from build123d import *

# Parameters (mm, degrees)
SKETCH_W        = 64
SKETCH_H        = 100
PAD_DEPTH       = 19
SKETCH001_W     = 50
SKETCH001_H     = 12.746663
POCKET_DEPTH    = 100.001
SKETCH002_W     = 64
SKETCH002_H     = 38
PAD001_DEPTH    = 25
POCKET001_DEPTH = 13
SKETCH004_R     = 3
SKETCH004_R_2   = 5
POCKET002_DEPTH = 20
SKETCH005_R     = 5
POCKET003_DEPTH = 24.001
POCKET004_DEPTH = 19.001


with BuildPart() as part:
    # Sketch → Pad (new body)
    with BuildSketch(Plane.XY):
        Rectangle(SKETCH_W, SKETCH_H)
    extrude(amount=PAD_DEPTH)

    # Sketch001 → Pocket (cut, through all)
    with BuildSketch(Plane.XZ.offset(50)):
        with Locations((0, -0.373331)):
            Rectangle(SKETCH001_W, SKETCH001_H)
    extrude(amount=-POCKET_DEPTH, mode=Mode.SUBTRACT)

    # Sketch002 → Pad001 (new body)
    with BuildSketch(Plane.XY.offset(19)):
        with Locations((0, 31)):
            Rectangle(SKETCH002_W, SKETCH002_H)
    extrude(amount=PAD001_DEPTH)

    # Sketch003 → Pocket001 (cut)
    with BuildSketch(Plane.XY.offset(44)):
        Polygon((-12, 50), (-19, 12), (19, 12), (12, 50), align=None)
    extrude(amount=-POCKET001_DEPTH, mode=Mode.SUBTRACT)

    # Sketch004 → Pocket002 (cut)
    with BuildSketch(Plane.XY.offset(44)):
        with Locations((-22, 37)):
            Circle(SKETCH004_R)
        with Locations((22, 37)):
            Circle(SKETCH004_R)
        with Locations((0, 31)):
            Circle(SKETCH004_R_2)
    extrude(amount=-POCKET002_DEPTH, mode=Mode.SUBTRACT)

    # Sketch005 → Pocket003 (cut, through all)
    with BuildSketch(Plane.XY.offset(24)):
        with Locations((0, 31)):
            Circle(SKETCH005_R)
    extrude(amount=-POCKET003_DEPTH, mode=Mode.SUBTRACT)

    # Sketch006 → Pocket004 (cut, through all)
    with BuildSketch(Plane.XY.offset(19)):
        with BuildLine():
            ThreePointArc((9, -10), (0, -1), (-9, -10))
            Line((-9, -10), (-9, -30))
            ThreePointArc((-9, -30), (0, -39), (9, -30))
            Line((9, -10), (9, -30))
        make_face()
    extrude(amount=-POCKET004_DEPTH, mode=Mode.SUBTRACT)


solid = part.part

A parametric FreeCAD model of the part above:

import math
import FreeCAD as App
import Part
import Sketcher
Q = App.Units.Quantity

doc = App.newDocument("Part")
body = doc.addObject("PartDesign::Body", "Body")

# Sketch on XY plane
sketch1 = body.newObject("Sketcher::SketchObject", "Sketch")
sketch1.AttachmentSupport = (doc.getObject("XY_Plane"), [""])
sketch1.MapMode = "FlatFace"
sketch1.addGeometry([
    Part.LineSegment(App.Vector(-32, 50, 0), App.Vector(-32, -50, 0)),
    Part.LineSegment(App.Vector(-32, -50, 0), App.Vector(32, -50, 0)),
    Part.LineSegment(App.Vector(32, -50, 0), App.Vector(32, 50, 0)),
    Part.LineSegment(App.Vector(32, 50, 0), App.Vector(-32, 50, 0)),
], False)
sketch1.addConstraint([
    Sketcher.Constraint("Coincident", 0, 2, 1, 1),
    Sketcher.Constraint("Coincident", 1, 2, 2, 1),
    Sketcher.Constraint("Coincident", 2, 2, 3, 1),
    Sketcher.Constraint("Coincident", 3, 2, 0, 1),
    Sketcher.Constraint("Vertical", 0),
    Sketcher.Constraint("Horizontal", 1),
    Sketcher.Constraint("Vertical", 2),
    Sketcher.Constraint("Horizontal", 3),
    Sketcher.Constraint("Symmetric", 0, 2, 2, 2, -1, 1),
    Sketcher.Constraint("DistanceX", 1, 1, 1, 2, Q("64 mm")),
    Sketcher.Constraint("DistanceY", 0, 2, 0, 1, Q("100 mm")),
])
pad1 = body.newObject("PartDesign::Pad", "Pad")
pad1.Profile = sketch1
pad1.Length = 19

# Sketch on XZ plane
sketch2 = body.newObject("Sketcher::SketchObject", "Sketch001")
sketch2.AttachmentSupport = (doc.getObject("XZ_Plane"), [""])
sketch2.MapMode = "FlatFace"
sketch2.AttachmentOffset = App.Placement(App.Vector(0, 0, 50), App.Rotation())
sketch2.addGeometry([
    Part.LineSegment(App.Vector(-25, 6, 0), App.Vector(-25, -7, 0)),
    Part.LineSegment(App.Vector(-25, -7, 0), App.Vector(25, -7, 0)),
    Part.LineSegment(App.Vector(25, -7, 0), App.Vector(25, 6, 0)),
    Part.LineSegment(App.Vector(25, 6, 0), App.Vector(-25, 6, 0)),
], False)
sketch2.addConstraint([
    Sketcher.Constraint("Coincident", 0, 2, 1, 1),
    Sketcher.Constraint("Coincident", 1, 2, 2, 1),
    Sketcher.Constraint("Coincident", 2, 2, 3, 1),
    Sketcher.Constraint("Coincident", 3, 2, 0, 1),
    Sketcher.Constraint("Vertical", 0),
    Sketcher.Constraint("Horizontal", 1),
    Sketcher.Constraint("Vertical", 2),
    Sketcher.Constraint("Horizontal", 3),
    Sketcher.Constraint("DistanceX", 1, 1, 1, 2, Q("50 mm")),
    Sketcher.Constraint("DistanceX", 0, 2, -1, 1, Q("25 mm")),
    Sketcher.Constraint("DistanceY", -1, 1, 2, 2, Q("6 mm")),
    Sketcher.Constraint("DistanceY", 0, 2, 0, 1, Q("12.746663 mm")),
])
pocket1 = body.newObject("PartDesign::Pocket", "Pocket")
pocket1.Profile = sketch2
pocket1.Type = "ThroughAll"

# Sketch on XY plane
sketch3 = body.newObject("Sketcher::SketchObject", "Sketch002")
sketch3.AttachmentSupport = (doc.getObject("XY_Plane"), [""])
sketch3.MapMode = "FlatFace"
sketch3.AttachmentOffset = App.Placement(App.Vector(0, 0, 19), App.Rotation())
sketch3.addGeometry([
    Part.LineSegment(App.Vector(-32, 50, 0), App.Vector(-32, 12, 0)),
    Part.LineSegment(App.Vector(-32, 12, 0), App.Vector(32, 12, 0)),
    Part.LineSegment(App.Vector(32, 12, 0), App.Vector(32, 50, 0)),
    Part.LineSegment(App.Vector(32, 50, 0), App.Vector(-32, 50, 0)),
], False)
sketch3.addConstraint([
    Sketcher.Constraint("Coincident", 0, 2, 1, 1),
    Sketcher.Constraint("Coincident", 1, 2, 2, 1),
    Sketcher.Constraint("Coincident", 2, 2, 3, 1),
    Sketcher.Constraint("Coincident", 3, 2, 0, 1),
    Sketcher.Constraint("Vertical", 0),
    Sketcher.Constraint("Horizontal", 1),
    Sketcher.Constraint("Vertical", 2),
    Sketcher.Constraint("Horizontal", 3),
    Sketcher.Constraint("DistanceX", 1, 1, 1, 2, Q("64 mm")),
    Sketcher.Constraint("DistanceY", 0, 2, 0, 1, Q("38 mm")),
    Sketcher.Constraint("DistanceX", 0, 2, -1, 1, Q("32 mm")),
    Sketcher.Constraint("DistanceY", -1, 1, 0, 2, Q("12 mm")),
])
pad2 = body.newObject("PartDesign::Pad", "Pad001")
pad2.Profile = sketch3
pad2.Length = 25

# Sketch on XY plane
sketch4 = body.newObject("Sketcher::SketchObject", "Sketch003")
sketch4.AttachmentSupport = (doc.getObject("XY_Plane"), [""])
sketch4.MapMode = "FlatFace"
sketch4.AttachmentOffset = App.Placement(App.Vector(0, 0, 44), App.Rotation())
sketch4.addGeometry([
    Part.LineSegment(App.Vector(-12, 50, 0), App.Vector(-19, 12, 0)),
    Part.LineSegment(App.Vector(-19, 12, 0), App.Vector(19, 12, 0)),
    Part.LineSegment(App.Vector(19, 12, 0), App.Vector(12, 50, 0)),
    Part.LineSegment(App.Vector(12, 50, 0), App.Vector(-12, 50, 0)),
], False)
sketch4.addConstraint([
    Sketcher.Constraint("Coincident", 0, 2, 1, 1),
    Sketcher.Constraint("Coincident", 1, 2, 2, 1),
    Sketcher.Constraint("Coincident", 2, 2, 3, 1),
    Sketcher.Constraint("Coincident", 3, 2, 0, 1),
    Sketcher.Constraint("Horizontal", 1),
    Sketcher.Constraint("Horizontal", 3),
    Sketcher.Constraint("Equal", 0, 2),
    Sketcher.Constraint("DistanceX", 1, 1, 1, 2, Q("38 mm")),
    Sketcher.Constraint("DistanceX", 3, 2, 3, 1, Q("24 mm")),
    Sketcher.Constraint("DistanceX", 0, 2, -1, 1, Q("19 mm")),
    Sketcher.Constraint("DistanceY", -1, 1, 0, 2, Q("12 mm")),
    Sketcher.Constraint("DistanceY", -1, 1, 2, 2, Q("50 mm")),
])
pocket2 = body.newObject("PartDesign::Pocket", "Pocket001")
pocket2.Profile = sketch4
pocket2.Length = 13

# Sketch on XY plane
sketch5 = body.newObject("Sketcher::SketchObject", "Sketch004")
sketch5.AttachmentSupport = (doc.getObject("XY_Plane"), [""])
sketch5.MapMode = "FlatFace"
sketch5.AttachmentOffset = App.Placement(App.Vector(0, 0, 44), App.Rotation())
sketch5.addGeometry([
    Part.Circle(App.Vector(-22, 37, 0), App.Vector(0, 0, 1), 3),
    Part.Circle(App.Vector(22, 37, 0), App.Vector(0, 0, 1), 3),
    Part.Circle(App.Vector(0, 31, 0), App.Vector(0, 0, 1), 5),
], False)
sketch5.addConstraint([
    Sketcher.Constraint("Equal", 0, 1),
    Sketcher.Constraint("Symmetric", 0, 3, 1, 3, -2),
    Sketcher.Constraint("PointOnObject", 2, 3, -2),
    Sketcher.Constraint("Diameter", 0, Q("6 mm")),
    Sketcher.Constraint("Diameter", 2, Q("10 mm")),
    Sketcher.Constraint("DistanceX", 0, 3, -1, 1, Q("22 mm")),
    Sketcher.Constraint("DistanceY", -1, 1, 0, 3, Q("37 mm")),
    Sketcher.Constraint("DistanceY", -1, 1, 2, 3, Q("31 mm")),
])
pocket3 = body.newObject("PartDesign::Pocket", "Pocket002")
pocket3.Profile = sketch5
pocket3.Length = 20

# Sketch on XY plane
sketch6 = body.newObject("Sketcher::SketchObject", "Sketch005")
sketch6.AttachmentSupport = (doc.getObject("XY_Plane"), [""])
sketch6.MapMode = "FlatFace"
sketch6.AttachmentOffset = App.Placement(App.Vector(0, 0, 24), App.Rotation())
sketch6.addGeometry(Part.Circle(App.Vector(0, 31, 0), App.Vector(0, 0, 1), 5), False)
sketch6.addConstraint([
    Sketcher.Constraint("PointOnObject", 0, 3, -2),
    Sketcher.Constraint("Diameter", 0, Q("10 mm")),
    Sketcher.Constraint("DistanceY", -1, 1, 0, 3, Q("31 mm")),
])
pocket4 = body.newObject("PartDesign::Pocket", "Pocket003")
pocket4.Profile = sketch6
pocket4.Type = "ThroughAll"

# Sketch on XY plane
sketch7 = body.newObject("Sketcher::SketchObject", "Sketch006")
sketch7.AttachmentSupport = (doc.getObject("XY_Plane"), [""])
sketch7.MapMode = "FlatFace"
sketch7.AttachmentOffset = App.Placement(App.Vector(0, 0, 19), App.Rotation())
sketch7.addGeometry([
    Part.ArcOfCircle(Part.Circle(App.Vector(0, -10, 0), App.Vector(0, 0, 1), 9), math.radians(0), math.radians(180)),
    Part.LineSegment(App.Vector(-9, -10, 0), App.Vector(-9, -30, 0)),
    Part.ArcOfCircle(Part.Circle(App.Vector(0, -30, 0), App.Vector(0, 0, 1), 9), math.radians(180), math.radians(360)),
    Part.LineSegment(App.Vector(9, -30, 0), App.Vector(9, -10, 0)),
], False)
sketch7.addConstraint([
    Sketcher.Constraint("Tangent", 0, 2, 1, 1),
    Sketcher.Constraint("Tangent", 1, 2, 2, 1),
    Sketcher.Constraint("Tangent", 2, 2, 3, 1),
    Sketcher.Constraint("Tangent", 3, 2, 0, 1),
    Sketcher.Constraint("Vertical", 1),
    Sketcher.Constraint("Vertical", 3),
    Sketcher.Constraint("PointOnObject", 0, 3, -2),
    Sketcher.Constraint("Radius", 0, Q("9 mm")),
    Sketcher.Constraint("DistanceY", 1, 2, 1, 1, Q("20 mm")),
    Sketcher.Constraint("DistanceY", 0, 3, -1, 1, Q("10 mm")),
])
pocket5 = body.newObject("PartDesign::Pocket", "Pocket004")
pocket5.Profile = sketch7
pocket5.Type = "ThroughAll"

doc.recompute()
